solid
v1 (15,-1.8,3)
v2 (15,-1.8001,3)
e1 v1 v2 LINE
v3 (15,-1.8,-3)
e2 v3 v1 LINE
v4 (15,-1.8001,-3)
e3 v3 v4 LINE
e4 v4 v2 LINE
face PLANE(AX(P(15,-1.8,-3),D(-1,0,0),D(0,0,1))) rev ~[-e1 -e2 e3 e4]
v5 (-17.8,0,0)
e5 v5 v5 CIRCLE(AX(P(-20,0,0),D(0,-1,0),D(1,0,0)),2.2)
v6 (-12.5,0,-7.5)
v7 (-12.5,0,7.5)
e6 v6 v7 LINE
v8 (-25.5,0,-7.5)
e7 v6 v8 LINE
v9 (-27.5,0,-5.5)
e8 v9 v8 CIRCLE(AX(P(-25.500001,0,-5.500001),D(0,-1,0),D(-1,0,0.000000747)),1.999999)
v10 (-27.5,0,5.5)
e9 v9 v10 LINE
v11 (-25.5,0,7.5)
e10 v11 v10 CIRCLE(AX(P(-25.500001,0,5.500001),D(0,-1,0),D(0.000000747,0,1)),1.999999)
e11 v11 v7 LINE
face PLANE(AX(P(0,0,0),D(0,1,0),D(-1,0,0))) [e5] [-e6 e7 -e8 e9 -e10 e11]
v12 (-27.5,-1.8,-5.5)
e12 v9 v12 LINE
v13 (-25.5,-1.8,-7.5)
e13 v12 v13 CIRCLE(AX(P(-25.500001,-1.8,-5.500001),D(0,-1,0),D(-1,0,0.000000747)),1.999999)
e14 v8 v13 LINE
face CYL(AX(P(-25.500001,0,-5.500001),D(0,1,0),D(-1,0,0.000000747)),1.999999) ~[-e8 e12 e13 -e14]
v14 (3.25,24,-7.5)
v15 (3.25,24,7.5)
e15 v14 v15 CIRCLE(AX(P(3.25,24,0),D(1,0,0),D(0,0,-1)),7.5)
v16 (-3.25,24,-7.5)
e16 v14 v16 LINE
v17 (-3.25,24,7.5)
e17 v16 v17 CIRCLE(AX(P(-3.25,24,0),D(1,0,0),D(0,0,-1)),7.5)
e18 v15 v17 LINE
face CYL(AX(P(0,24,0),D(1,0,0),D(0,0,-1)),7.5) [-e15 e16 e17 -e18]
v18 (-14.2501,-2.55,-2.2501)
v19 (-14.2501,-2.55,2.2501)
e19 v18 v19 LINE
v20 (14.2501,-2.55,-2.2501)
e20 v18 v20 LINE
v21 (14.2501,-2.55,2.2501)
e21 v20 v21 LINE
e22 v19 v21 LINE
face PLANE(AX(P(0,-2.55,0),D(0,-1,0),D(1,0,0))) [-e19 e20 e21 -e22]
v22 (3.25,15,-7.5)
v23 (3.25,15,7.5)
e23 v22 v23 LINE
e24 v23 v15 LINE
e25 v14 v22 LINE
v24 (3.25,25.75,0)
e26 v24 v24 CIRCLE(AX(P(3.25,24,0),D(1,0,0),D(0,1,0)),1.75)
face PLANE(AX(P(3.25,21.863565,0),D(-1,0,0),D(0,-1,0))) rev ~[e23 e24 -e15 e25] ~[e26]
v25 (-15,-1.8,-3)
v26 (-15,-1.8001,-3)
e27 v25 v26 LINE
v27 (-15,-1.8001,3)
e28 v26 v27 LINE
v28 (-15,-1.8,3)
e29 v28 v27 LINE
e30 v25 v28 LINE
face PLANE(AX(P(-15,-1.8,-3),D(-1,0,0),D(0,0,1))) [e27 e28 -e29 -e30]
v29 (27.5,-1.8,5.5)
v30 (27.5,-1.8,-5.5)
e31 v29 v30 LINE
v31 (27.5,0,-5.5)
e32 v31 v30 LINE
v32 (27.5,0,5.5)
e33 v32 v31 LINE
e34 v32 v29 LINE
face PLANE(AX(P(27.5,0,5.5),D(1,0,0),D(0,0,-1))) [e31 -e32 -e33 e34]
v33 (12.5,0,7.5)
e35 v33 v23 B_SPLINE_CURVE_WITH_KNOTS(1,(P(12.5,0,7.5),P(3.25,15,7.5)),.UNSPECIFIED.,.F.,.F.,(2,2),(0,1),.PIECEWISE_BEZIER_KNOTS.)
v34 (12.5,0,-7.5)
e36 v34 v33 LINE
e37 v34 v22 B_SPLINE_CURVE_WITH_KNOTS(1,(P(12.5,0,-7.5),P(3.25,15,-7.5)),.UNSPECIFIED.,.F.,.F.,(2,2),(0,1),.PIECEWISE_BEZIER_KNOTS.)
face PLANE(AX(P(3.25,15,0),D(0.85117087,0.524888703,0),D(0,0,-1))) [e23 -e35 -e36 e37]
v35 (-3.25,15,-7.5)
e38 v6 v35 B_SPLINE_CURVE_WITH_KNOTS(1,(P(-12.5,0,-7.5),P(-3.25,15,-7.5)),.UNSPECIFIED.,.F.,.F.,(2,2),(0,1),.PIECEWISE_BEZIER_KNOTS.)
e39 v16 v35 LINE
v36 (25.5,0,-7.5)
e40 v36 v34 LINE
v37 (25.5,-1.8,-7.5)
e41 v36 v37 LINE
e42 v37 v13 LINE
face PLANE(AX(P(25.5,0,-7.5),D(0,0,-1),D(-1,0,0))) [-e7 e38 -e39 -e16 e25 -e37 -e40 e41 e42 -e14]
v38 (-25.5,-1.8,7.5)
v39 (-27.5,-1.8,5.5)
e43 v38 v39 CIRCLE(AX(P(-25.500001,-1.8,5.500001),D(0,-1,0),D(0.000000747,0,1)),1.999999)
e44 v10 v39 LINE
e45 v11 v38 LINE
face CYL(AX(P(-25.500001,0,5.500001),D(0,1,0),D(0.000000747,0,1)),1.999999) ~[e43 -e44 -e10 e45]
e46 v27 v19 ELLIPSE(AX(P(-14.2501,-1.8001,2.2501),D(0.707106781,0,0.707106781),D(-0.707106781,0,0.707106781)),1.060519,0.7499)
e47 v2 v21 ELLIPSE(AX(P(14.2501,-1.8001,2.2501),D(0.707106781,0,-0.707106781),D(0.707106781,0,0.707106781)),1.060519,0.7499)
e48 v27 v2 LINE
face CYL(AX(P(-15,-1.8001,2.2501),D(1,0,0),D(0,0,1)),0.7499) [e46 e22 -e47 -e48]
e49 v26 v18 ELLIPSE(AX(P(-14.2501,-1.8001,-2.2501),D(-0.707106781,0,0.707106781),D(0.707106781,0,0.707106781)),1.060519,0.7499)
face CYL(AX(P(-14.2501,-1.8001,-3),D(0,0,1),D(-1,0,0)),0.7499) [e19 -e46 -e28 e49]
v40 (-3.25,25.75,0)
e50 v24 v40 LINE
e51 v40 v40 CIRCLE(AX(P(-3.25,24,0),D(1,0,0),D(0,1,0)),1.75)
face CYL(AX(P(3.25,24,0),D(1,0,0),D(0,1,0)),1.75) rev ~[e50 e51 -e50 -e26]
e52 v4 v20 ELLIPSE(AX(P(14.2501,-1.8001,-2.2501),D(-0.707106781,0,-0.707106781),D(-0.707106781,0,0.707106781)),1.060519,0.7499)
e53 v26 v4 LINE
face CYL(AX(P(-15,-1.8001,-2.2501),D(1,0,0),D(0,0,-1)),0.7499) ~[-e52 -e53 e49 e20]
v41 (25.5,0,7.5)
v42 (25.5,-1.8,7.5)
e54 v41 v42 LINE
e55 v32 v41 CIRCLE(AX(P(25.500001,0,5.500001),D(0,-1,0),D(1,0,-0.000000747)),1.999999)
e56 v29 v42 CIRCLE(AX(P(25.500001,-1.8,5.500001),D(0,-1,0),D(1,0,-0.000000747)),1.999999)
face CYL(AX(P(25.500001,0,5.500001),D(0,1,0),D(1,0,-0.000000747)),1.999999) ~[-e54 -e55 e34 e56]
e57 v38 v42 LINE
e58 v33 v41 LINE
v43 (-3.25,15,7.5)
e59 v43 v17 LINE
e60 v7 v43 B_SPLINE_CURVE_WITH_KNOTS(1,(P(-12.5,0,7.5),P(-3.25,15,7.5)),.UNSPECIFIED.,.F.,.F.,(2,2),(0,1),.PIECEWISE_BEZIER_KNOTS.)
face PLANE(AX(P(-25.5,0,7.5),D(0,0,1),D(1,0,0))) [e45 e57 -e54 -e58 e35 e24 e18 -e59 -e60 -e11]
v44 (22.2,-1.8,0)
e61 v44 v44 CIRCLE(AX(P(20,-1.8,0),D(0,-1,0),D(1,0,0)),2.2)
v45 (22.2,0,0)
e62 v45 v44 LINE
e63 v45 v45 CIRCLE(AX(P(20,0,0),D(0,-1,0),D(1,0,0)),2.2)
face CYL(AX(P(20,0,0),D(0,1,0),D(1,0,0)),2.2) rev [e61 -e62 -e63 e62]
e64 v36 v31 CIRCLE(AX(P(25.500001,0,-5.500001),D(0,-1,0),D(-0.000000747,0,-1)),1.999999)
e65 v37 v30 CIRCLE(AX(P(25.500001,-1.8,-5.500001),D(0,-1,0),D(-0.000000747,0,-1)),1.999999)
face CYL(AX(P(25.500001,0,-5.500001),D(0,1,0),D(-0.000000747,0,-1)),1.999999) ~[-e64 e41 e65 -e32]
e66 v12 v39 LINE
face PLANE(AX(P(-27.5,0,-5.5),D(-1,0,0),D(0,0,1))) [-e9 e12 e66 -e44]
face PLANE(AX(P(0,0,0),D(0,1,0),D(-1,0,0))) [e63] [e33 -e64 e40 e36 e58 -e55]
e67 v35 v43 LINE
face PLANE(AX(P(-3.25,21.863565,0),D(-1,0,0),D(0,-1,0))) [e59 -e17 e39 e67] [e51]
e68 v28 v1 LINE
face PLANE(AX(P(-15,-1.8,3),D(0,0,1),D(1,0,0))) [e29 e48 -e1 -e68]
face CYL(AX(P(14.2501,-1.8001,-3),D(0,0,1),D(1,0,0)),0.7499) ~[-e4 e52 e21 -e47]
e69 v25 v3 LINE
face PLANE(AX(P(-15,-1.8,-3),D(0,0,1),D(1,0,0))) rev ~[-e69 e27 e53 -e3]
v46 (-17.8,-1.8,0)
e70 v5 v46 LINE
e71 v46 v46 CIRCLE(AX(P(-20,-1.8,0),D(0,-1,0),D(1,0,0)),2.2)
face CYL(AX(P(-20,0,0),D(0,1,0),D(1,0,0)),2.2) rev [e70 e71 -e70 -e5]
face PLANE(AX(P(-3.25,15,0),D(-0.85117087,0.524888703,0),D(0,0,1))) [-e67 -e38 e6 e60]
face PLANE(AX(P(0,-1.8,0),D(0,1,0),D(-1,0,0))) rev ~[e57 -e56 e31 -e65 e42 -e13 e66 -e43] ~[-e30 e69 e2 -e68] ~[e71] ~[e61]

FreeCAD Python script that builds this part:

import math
import FreeCAD as App
import Part
import Sketcher
Q = App.Units.Quantity


def edges_at(feature, points):
    """Names of the edges that pass closest to the given points."""
    edges = feature.Shape.Edges
    near = lambda p: min(range(len(edges)), key=lambda i: edges[i].distToShape(Part.Vertex(*p))[0])
    return sorted({f"Edge{near(p) + 1}" for p in points})


def add_polygon(sketch, points):
    """Adds a closed chain of lines whose ends are joined by coincident constraints."""
    first, n = sketch.GeometryCount, len(points)
    for a, b in zip(points, points[1:] + points[:1]):
        sketch.addGeometry(Part.LineSegment(App.Vector(*a, 0), App.Vector(*b, 0)), False)
    for i in range(n):
        sketch.addConstraint(Sketcher.Constraint("Coincident", first + i, 2, first + (i + 1) % n, 1))

doc = App.newDocument("Part")
body = doc.addObject("PartDesign::Body", "Body")

sketch1 = body.newObject("Sketcher::SketchObject", "Sketch")
sketch1.AttachmentSupport = (doc.getObject("XZ_Plane"), [""])
sketch1.MapMode = "FlatFace"
sketch1.addGeometry([
    Part.LineSegment(App.Vector(25.5, 7.5, 0), App.Vector(-25.5, 7.5, 0)),
    Part.ArcOfCircle(Part.Circle(App.Vector(-25.5, 5.5, 0), App.Vector(0, 0, 1), 2), math.radians(90), math.radians(180)),
    Part.LineSegment(App.Vector(-27.5, 5.5, 0), App.Vector(-27.5, -5.5, 0)),
    Part.ArcOfCircle(Part.Circle(App.Vector(-25.5, -5.5, 0), App.Vector(0, 0, 1), 2), math.radians(180), math.radians(270)),
    Part.LineSegment(App.Vector(-25.5, -7.5, 0), App.Vector(25.5, -7.5, 0)),
    Part.ArcOfCircle(Part.Circle(App.Vector(25.5, -5.5, 0), App.Vector(0, 0, 1), 2), math.radians(-90), math.radians(0)),
    Part.LineSegment(App.Vector(27.5, -5.5, 0), App.Vector(27.5, 5.5, 0)),
    Part.ArcOfCircle(Part.Circle(App.Vector(25.5, 5.5, 0), App.Vector(0, 0, 1), 2), math.radians(0), math.radians(90)),
    Part.Circle(App.Vector(20, 0, 0), App.Vector(0, 0, 1), 2.2),
    Part.Circle(App.Vector(-20, 0, 0), App.Vector(0, 0, 1), 2.2),
], False)
sketch1.addConstraint([
    Sketcher.Constraint("Tangent", 0, 2, 1, 1),
    Sketcher.Constraint("Tangent", 1, 2, 2, 1),
    Sketcher.Constraint("Tangent", 2, 2, 3, 1),
    Sketcher.Constraint("Tangent", 3, 2, 4, 1),
    Sketcher.Constraint("Tangent", 4, 2, 5, 1),
    Sketcher.Constraint("Tangent", 5, 2, 6, 1),
    Sketcher.Constraint("Tangent", 6, 2, 7, 1),
    Sketcher.Constraint("Tangent", 7, 2, 0, 1),
    Sketcher.Constraint("Horizontal", 0),
    Sketcher.Constraint("Vertical", 2),
    Sketcher.Constraint("Horizontal", 4),
    Sketcher.Constraint("Vertical", 6),
    Sketcher.Constraint("Equal", 1, 3),
    Sketcher.Constraint("Equal", 3, 5),
    Sketcher.Constraint("Equal", 5, 7),
    Sketcher.Constraint("Equal", 8, 9),
    Sketcher.Constraint("Symmetric", 1, 3, 5, 3, -1, 1),
    Sketcher.Constraint("Symmetric", 8, 3, 9, 3, -1, 1),
    Sketcher.Constraint("PointOnObject", 8, 3, -1),
    Sketcher.Constraint("Radius", 1, Q("1.999999 mm")),
    Sketcher.Constraint("Diameter", 8, Q("4.4 mm")),
    Sketcher.Constraint("DistanceX", 0, 2, 0, 1, Q("51 mm")),
    Sketcher.Constraint("DistanceY", 2, 2, 2, 1, Q("11 mm")),
    Sketcher.Constraint("DistanceX", -1, 1, 8, 3, Q("20 mm")),
])
pad1 = body.newObject("PartDesign::Pad", "Pad")
pad1.Profile = sketch1
pad1.Length = 1.8

sketch2 = body.newObject("Sketcher::SketchObject", "Sketch001")
sketch2.AttachmentSupport = (doc.getObject("XZ_Plane"), [""])
sketch2.MapMode = "FlatFace"
sketch2.AttachmentOffset = App.Placement(App.Vector(0, 0, 1.8), App.Rotation())
add_polygon(sketch2, [(-15, 3), (-15, -3), (15, -3), (15, 3)])
sketch2.addConstraint([
    Sketcher.Constraint("Vertical", 0),
    Sketcher.Constraint("Horizontal", 1),
    Sketcher.Constraint("Vertical", 2),
    Sketcher.Constraint("Horizontal", 3),
    Sketcher.Constraint("Symmetric", 0, 2, 2, 2, -1, 1),
    Sketcher.Constraint("DistanceX", 1, 1, 1, 2, Q("30 mm")),
    Sketcher.Constraint("DistanceY", 0, 2, 0, 1, Q("6 mm")),
])
pad2 = body.newObject("PartDesign::Pad", "Pad001")
pad2.Profile = sketch2
pad2.Length = 0.75
doc.recompute()

fillet = body.newObject("PartDesign::Fillet", "Fillet")
fillet.Base = (pad2, edges_at(pad2, [
    (-15, -2.55, 0),
    (0, -2.55, 3),
    (15, -2.55, 0),
    (0, -2.55, -3),
]))
fillet.Radius = 0.7499
body2 = doc.addObject("PartDesign::Body", "Body001")

sketch3 = body2.newObject("Sketcher::SketchObject", "Sketch002")
sketch3.AttachmentSupport = (doc.getObject("XZ_Plane001"), [""])
sketch3.MapMode = "FlatFace"
add_polygon(sketch3, [(-12, 8), (-12, -8), (12, -8), (12, 8)])
sketch3.addConstraint([
    Sketcher.Constraint("Vertical", 0),
    Sketcher.Constraint("Horizontal", 1),
    Sketcher.Constraint("Vertical", 2),
    Sketcher.Constraint("Horizontal", 3),
    Sketcher.Constraint("Symmetric", 0, 2, 2, 2, -1, 1),
    Sketcher.Constraint("DistanceX", 1, 1, 1, 2, Q("25 mm")),
    Sketcher.Constraint("DistanceY", 0, 2, 0, 1, Q("15 mm")),
])

sketch4 = body2.newObject("Sketcher::SketchObject", "Sketch003")
sketch4.AttachmentSupport = (doc.getObject("XZ_Plane001"), [""])
sketch4.MapMode = "FlatFace"
sketch4.AttachmentOffset = App.Placement(App.Vector(0, 0, 15), App.Rotation())
add_polygon(sketch4, [(-3, 8), (-3, -8), (3, -8), (3, 8)])
sketch4.addConstraint([
    Sketcher.Constraint("Vertical", 0),
    Sketcher.Constraint("Horizontal", 1),
    Sketcher.Constraint("Vertical", 2),
    Sketcher.Constraint("Horizontal", 3),
    Sketcher.Constraint("Symmetric", 0, 2, 2, 2, -1, 1),
    Sketcher.Constraint("DistanceY", 0, 2, 0, 1, Q("15 mm")),
    Sketcher.Constraint("DistanceX", 1, 1, 1, 2, Q("6.5 mm")),
])

additiveloft = body2.newObject("PartDesign::AdditiveLoft", "AdditiveLoft")
additiveloft.Profile = sketch3
additiveloft.Sections = [sketch4]
additiveloft.Ruled = True
body3 = doc.addObject("PartDesign::Body", "Body002")
doc.recompute()

body2.Placement = App.Placement(App.Vector(0, 0, 0), App.Rotation(App.Vector(0, 0, 1), 180))
boolean = body3.newObject("PartDesign::Boolean", "Boolean")
boolean.Type = "Fuse"
boolean.addObjects([body2])
doc.recompute()

boolean2 = body3.newObject("PartDesign::Boolean", "Boolean001")
boolean2.Type = "Fuse"
boolean2.addObjects([body])
body4 = doc.addObject("PartDesign::Body", "Body003")

sketch5 = body4.newObject("Sketcher::SketchObject", "Sketch004")
sketch5.AttachmentSupport = (doc.getObject("YZ_Plane003"), [""])
sketch5.MapMode = "FlatFace"
sketch5.addGeometry([
    Part.LineSegment(App.Vector(24, 8, 0), App.Vector(15, 8, 0)),
    Part.LineSegment(App.Vector(15, 8, 0), App.Vector(15, -8, 0)),
    Part.LineSegment(App.Vector(15, -8, 0), App.Vector(24, -8, 0)),
    Part.ArcOfCircle(Part.Circle(App.Vector(24, 0, 0), App.Vector(0, 0, 1), 8), math.radians(-90), math.radians(90)),
], False)
sketch5.addConstraint([
    Sketcher.Constraint("Coincident", 0, 2, 1, 1),
    Sketcher.Constraint("Coincident", 1, 2, 2, 1),
    Sketcher.Constraint("Tangent", 2, 2, 3, 1),
    Sketcher.Constraint("Tangent", 3, 2, 0, 1),
    Sketcher.Constraint("Horizontal", 0),
    Sketcher.Constraint("Vertical", 1),
    Sketcher.Constraint("Horizontal", 2),
    Sketcher.Constraint("PointOnObject", 3, 3, -1),
    Sketcher.Constraint("Radius", 3, Q("7.5 mm")),
    Sketcher.Constraint("DistanceX", 0, 2, 0, 1, Q("9 mm")),
    Sketcher.Constraint("DistanceX", -1, 1, 3, 3, Q("24 mm")),
])
pad3 = body4.newObject("PartDesign::Pad", "Pad002")
pad3.Profile = sketch5
pad3.Length = 6.5
pad3.Midplane = True

sketch6 = body4.newObject("Sketcher::SketchObject", "Sketch005")
sketch6.AttachmentSupport = (doc.getObject("YZ_Plane003"), [""])
sketch6.MapMode = "FlatFace"
sketch6.AttachmentOffset = App.Placement(App.Vector(0, 0, 3.25), App.Rotation())
sketch6.addGeometry(Part.Circle(App.Vector(24, 0, 0), App.Vector(0, 0, 1), 1.8), False)
sketch6.addConstraint([
    Sketcher.Constraint("PointOnObject", 0, 3, -1),
    Sketcher.Constraint("Diameter", 0, Q("3.5 mm")),
    Sketcher.Constraint("DistanceX", -1, 1, 0, 3, Q("24 mm")),
])
pocket1 = body4.newObject("PartDesign::Pocket", "Pocket")
pocket1.Profile = sketch6
pocket1.Length = 6.5
doc.recompute()

boolean3 = body4.newObject("PartDesign::Boolean", "Boolean002")
boolean3.Type = "Fuse"
boolean3.addObjects([body3])

doc.recompute()
